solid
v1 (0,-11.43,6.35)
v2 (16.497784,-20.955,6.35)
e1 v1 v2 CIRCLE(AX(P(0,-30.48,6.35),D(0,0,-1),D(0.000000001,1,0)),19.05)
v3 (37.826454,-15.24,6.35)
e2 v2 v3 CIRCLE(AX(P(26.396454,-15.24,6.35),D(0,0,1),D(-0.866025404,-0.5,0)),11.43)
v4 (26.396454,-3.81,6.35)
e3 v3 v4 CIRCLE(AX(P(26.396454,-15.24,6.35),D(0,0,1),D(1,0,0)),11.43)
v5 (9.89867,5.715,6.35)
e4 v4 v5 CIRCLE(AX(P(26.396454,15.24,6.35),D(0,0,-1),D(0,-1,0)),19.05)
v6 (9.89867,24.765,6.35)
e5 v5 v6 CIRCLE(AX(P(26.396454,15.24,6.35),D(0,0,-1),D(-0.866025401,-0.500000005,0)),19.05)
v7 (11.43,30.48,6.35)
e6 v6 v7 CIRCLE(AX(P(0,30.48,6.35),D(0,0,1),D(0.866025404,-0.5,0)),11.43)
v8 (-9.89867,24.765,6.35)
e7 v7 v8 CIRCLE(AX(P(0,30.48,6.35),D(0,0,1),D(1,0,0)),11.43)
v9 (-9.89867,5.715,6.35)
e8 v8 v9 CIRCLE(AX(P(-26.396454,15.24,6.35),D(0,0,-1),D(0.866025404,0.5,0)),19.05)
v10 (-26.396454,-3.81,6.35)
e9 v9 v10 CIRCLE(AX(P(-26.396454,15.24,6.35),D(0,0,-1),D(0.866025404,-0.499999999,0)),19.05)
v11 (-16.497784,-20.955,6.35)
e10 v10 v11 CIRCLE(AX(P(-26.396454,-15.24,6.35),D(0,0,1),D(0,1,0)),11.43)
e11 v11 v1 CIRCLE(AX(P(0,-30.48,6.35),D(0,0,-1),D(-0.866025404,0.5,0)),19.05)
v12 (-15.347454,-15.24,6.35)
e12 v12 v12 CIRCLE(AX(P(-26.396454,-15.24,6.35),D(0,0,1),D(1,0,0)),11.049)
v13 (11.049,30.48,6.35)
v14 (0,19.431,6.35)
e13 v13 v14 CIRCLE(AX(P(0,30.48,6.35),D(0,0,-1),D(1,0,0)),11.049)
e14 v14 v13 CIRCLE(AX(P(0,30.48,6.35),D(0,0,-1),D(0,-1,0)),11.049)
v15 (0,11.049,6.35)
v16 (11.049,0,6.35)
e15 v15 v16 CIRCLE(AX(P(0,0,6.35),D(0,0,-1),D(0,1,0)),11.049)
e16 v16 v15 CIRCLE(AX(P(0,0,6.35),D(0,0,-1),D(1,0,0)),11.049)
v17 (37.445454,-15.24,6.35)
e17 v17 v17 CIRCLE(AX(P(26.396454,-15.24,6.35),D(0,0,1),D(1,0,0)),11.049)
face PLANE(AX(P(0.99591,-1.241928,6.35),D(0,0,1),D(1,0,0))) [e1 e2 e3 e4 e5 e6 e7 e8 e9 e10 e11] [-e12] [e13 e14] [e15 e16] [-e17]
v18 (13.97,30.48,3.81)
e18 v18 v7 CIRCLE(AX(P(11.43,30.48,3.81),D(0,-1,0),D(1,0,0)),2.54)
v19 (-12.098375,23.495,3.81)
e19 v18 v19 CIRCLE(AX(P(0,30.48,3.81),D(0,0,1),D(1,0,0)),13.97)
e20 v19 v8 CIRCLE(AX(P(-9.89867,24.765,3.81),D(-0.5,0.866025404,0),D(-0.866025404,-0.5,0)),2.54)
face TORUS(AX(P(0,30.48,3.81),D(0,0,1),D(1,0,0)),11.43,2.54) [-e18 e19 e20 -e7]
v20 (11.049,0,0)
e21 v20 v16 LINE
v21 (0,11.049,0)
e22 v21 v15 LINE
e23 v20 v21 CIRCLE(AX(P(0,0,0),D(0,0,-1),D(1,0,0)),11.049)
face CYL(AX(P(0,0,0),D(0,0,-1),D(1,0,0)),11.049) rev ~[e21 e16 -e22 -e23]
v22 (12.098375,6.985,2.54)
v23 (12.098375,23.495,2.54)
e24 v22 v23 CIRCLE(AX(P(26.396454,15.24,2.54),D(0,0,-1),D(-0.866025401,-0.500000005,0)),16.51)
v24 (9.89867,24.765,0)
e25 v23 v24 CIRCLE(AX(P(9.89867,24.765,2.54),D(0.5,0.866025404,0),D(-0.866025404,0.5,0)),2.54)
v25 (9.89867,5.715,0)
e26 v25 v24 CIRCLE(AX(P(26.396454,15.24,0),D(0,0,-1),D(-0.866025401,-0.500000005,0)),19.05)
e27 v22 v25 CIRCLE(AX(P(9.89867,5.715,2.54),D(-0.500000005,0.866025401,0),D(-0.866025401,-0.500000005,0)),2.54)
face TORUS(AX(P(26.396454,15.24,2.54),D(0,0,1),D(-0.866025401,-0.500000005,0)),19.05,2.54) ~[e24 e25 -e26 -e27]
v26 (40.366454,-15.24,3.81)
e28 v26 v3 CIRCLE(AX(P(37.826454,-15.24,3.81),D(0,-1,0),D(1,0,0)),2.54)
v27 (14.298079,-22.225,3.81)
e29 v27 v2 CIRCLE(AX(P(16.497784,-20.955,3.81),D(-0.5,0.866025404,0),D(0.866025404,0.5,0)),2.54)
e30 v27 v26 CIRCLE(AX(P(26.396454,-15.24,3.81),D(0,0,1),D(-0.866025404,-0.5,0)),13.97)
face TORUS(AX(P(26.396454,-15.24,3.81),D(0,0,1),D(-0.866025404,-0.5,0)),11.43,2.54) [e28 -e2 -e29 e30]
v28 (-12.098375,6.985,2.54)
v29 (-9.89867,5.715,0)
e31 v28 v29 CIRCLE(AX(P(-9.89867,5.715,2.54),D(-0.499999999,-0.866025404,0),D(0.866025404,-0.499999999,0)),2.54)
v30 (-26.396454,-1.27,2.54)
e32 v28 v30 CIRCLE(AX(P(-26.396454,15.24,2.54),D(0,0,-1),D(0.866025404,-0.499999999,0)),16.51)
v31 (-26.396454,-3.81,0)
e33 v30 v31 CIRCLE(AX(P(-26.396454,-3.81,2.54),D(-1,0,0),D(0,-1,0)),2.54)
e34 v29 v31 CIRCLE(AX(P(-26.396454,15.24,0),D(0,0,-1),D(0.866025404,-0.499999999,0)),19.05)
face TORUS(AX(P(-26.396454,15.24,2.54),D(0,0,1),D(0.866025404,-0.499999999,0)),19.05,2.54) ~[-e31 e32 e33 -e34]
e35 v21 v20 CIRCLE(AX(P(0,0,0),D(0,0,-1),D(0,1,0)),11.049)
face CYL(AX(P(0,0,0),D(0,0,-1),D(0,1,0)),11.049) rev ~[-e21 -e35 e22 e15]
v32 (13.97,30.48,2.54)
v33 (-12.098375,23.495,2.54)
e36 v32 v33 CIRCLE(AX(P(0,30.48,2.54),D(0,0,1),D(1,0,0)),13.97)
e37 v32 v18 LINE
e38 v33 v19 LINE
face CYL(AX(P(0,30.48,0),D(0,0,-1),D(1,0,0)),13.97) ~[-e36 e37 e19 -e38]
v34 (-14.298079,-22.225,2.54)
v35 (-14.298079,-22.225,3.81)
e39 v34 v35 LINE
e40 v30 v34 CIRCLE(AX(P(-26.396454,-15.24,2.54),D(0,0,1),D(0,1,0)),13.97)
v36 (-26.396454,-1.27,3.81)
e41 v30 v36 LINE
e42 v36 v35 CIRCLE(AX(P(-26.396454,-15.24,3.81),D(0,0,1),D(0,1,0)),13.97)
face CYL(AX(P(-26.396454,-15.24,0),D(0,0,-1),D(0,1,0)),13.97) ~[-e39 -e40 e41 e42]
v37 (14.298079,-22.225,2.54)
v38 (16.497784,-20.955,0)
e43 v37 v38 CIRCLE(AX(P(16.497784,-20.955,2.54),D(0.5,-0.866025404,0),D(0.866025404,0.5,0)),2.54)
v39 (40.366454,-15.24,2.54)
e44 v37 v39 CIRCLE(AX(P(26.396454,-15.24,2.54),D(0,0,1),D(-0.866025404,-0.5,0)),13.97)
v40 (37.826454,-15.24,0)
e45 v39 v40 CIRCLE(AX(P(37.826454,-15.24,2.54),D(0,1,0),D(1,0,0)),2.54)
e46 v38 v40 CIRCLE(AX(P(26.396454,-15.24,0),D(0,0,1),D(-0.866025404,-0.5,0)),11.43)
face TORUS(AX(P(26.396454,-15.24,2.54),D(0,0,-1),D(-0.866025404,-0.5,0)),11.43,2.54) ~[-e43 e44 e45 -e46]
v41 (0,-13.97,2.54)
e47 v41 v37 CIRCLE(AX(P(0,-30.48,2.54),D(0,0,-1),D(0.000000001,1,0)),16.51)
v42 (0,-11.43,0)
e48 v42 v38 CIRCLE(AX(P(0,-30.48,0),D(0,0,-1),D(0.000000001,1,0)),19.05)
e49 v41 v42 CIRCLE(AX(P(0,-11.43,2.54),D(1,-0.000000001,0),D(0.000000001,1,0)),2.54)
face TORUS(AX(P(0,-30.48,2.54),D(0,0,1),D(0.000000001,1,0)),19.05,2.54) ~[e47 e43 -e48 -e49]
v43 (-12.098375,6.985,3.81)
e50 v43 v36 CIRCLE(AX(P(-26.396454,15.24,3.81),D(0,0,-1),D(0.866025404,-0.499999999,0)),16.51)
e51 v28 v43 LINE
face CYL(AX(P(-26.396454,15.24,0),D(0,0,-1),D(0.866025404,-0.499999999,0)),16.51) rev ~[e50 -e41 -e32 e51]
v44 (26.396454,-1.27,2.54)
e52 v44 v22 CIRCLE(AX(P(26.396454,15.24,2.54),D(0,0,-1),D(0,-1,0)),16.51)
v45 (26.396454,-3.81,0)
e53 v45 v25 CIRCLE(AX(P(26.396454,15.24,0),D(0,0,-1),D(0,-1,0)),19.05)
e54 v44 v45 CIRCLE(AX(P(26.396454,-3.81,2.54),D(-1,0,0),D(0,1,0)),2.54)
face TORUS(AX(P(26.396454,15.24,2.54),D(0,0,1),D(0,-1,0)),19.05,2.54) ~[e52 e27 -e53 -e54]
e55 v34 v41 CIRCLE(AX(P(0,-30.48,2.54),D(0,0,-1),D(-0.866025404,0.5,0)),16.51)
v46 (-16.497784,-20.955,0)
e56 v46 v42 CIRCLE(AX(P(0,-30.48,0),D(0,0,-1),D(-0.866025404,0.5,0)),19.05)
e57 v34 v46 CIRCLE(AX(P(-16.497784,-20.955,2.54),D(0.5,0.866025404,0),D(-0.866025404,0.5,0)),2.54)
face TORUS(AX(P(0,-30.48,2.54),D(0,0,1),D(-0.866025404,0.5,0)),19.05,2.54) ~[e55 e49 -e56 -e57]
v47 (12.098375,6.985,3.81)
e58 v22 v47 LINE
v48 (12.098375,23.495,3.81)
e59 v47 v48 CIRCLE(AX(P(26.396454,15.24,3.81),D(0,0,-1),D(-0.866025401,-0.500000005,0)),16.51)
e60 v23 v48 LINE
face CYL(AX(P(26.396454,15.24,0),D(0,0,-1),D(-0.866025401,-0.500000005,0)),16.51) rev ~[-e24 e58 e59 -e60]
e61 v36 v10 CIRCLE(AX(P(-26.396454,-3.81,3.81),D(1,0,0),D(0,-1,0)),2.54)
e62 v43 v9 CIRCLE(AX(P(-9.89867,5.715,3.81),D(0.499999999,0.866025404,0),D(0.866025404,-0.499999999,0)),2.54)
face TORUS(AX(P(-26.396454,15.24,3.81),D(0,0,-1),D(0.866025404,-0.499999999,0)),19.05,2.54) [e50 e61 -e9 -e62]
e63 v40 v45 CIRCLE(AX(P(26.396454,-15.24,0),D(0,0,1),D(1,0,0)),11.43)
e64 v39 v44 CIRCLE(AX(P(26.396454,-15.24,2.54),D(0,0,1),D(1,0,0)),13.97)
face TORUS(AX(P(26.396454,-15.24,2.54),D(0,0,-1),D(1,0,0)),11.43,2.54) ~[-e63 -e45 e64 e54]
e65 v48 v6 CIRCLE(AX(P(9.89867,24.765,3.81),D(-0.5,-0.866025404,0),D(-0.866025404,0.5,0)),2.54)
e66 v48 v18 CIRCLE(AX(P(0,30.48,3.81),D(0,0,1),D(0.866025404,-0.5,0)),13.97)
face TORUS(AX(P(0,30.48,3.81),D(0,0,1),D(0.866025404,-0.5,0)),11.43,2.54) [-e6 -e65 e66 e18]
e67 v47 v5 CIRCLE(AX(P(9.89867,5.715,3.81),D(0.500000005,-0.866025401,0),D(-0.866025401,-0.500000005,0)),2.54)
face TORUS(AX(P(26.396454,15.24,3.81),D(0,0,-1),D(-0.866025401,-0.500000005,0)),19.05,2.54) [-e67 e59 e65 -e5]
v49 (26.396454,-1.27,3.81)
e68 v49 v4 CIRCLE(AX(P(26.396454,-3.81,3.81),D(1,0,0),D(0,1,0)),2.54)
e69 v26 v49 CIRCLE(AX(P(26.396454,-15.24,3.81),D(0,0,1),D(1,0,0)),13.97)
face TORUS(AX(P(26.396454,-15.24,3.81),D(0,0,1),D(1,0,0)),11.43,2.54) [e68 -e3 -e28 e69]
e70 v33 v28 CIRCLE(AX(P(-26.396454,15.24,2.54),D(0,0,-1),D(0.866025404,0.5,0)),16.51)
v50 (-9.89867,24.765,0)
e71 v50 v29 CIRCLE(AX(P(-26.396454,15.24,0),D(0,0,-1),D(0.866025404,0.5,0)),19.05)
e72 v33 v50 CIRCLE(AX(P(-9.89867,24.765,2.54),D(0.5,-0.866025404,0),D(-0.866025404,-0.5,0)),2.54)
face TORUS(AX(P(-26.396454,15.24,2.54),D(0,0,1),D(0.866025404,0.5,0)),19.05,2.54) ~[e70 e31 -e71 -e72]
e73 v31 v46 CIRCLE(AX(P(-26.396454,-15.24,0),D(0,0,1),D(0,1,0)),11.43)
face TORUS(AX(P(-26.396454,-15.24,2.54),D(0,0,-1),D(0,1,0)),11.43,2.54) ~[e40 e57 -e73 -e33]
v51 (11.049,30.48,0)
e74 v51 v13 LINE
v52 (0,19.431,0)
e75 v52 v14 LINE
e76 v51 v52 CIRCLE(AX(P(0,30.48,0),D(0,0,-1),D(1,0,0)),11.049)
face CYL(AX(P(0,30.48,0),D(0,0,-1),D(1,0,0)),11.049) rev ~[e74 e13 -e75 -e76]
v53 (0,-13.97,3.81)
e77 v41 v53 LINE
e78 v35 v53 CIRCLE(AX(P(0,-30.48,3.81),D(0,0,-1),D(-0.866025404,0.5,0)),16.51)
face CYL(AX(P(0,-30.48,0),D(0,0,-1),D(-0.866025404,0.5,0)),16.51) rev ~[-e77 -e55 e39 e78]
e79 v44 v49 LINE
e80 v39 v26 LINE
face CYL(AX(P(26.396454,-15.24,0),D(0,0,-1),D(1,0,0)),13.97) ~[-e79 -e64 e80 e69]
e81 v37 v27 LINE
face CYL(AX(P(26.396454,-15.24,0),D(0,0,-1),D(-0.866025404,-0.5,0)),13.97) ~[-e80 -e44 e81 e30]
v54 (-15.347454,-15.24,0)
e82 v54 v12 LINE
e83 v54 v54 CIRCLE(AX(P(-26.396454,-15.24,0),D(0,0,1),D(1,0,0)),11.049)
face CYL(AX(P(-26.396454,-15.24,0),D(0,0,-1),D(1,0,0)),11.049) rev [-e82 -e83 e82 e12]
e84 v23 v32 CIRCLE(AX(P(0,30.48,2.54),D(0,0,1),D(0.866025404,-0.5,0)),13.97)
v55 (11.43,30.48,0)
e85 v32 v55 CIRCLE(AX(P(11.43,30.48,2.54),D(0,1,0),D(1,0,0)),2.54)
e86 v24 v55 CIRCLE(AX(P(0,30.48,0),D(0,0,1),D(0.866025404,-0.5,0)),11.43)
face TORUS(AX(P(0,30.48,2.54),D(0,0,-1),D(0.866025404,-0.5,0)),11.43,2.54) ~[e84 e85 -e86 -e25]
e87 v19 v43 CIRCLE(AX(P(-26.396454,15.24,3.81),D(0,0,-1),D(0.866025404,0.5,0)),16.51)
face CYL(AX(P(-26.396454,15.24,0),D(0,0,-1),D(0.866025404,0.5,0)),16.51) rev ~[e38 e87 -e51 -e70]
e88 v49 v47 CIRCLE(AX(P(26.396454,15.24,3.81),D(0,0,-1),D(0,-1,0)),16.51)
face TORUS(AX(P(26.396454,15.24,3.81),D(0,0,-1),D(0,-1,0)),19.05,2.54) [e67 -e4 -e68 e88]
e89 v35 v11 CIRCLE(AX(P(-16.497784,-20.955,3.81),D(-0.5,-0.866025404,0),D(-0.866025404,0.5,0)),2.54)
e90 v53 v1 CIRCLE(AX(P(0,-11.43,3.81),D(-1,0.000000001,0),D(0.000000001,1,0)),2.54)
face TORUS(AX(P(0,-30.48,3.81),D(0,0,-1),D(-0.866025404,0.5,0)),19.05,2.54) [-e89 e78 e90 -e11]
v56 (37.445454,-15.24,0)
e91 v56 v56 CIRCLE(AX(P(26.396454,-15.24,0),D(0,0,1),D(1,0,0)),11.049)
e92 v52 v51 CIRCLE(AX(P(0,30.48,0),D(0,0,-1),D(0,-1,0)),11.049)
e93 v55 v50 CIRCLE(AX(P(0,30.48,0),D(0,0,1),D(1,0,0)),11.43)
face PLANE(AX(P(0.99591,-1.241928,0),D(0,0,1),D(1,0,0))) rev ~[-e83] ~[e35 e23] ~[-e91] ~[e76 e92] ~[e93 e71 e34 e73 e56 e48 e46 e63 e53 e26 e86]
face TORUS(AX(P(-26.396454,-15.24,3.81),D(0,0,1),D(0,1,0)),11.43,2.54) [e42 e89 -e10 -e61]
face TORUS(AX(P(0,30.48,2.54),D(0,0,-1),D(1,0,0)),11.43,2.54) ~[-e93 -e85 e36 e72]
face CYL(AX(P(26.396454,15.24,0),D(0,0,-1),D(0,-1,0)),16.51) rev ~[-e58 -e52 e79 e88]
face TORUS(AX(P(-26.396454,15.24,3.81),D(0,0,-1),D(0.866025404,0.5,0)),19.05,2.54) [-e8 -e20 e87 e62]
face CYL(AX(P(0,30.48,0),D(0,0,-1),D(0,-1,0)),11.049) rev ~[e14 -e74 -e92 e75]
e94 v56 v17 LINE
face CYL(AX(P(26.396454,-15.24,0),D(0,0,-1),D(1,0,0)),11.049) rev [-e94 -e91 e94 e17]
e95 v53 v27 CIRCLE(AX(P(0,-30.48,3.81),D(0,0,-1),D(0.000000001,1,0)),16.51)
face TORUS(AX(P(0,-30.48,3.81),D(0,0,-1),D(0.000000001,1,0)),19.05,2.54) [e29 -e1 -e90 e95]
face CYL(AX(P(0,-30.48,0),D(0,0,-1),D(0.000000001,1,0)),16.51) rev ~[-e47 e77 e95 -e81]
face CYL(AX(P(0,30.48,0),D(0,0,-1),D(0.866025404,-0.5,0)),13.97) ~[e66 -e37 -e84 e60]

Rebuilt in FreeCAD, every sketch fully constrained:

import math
import FreeCAD as App
import Part
import Sketcher
Q = App.Units.Quantity


def edges_at(feature, points):
    """Names of the edges that pass closest to the given points."""
    edges = feature.Shape.Edges
    near = lambda p: min(range(len(edges)), key=lambda i: edges[i].distToShape(Part.Vertex(*p))[0])
    return sorted({f"Edge{near(p) + 1}" for p in points})

doc = App.newDocument("Part")
body = doc.addObject("PartDesign::Body", "Body")

sketch1 = body.newObject("Sketcher::SketchObject", "Sketch")
sketch1.AttachmentSupport = (doc.getObject("XY_Plane"), [""])
sketch1.MapMode = "FlatFace"
sketch1.addGeometry(Part.ArcOfCircle(Part.Circle(App.Vector(26.396454, 15.24, 0), App.Vector(0, 0, 1), 16.51), math.radians(150), math.radians(210)), False)
sketch1.addGeometry(Part.ArcOfCircle(Part.Circle(App.Vector(0, 30.48, 0), App.Vector(0, 0, 1), 13.97), math.radians(-30), math.radians(0)), False)
sketch1.addGeometry(Part.ArcOfCircle(Part.Circle(App.Vector(0, 30.48, 0), App.Vector(0, 0, 1), 13.97), math.radians(0), math.radians(210)), False)
sketch1.addGeometry(Part.ArcOfCircle(Part.Circle(App.Vector(-26.396454, 15.24, 0), App.Vector(0, 0, 1), 16.51), math.radians(-30), math.radians(30)), False)
sketch1.addGeometry(Part.ArcOfCircle(Part.Circle(App.Vector(-26.396454, 15.24, 0), App.Vector(0, 0, 1), 16.51), math.radians(-90), math.radians(-30)), False)
sketch1.addGeometry(Part.ArcOfCircle(Part.Circle(App.Vector(-26.396454, -15.24, 0), App.Vector(0, 0, 1), 13.97), math.radians(90), math.radians(330)), False)
sketch1.addGeometry(Part.ArcOfCircle(Part.Circle(App.Vector(0, -30.48, 0), App.Vector(0, 0, 1), 16.51), math.radians(90), math.radians(150)), False)
sketch1.addGeometry(Part.ArcOfCircle(Part.Circle(App.Vector(0, -30.48, 0), App.Vector(0, 0, 1), 16.51), math.radians(30), math.radians(90)), False)
sketch1.addGeometry(Part.ArcOfCircle(Part.Circle(App.Vector(26.396454, -15.24, 0), App.Vector(0, 0, 1), 13.97), math.radians(-150), math.radians(0)), False)
sketch1.addGeometry(Part.ArcOfCircle(Part.Circle(App.Vector(26.396454, -15.24, 0), App.Vector(0, 0, 1), 13.97), math.radians(0), math.radians(90)), False)
sketch1.addGeometry(Part.ArcOfCircle(Part.Circle(App.Vector(26.396454, 15.24, 0), App.Vector(0, 0, 1), 16.51), math.radians(-150), math.radians(-90)), False)
sketch1.addGeometry(Part.Circle(App.Vector(-26.396454, -15.24, 0), App.Vector(0, 0, 1), 11.049), False)
sketch1.addGeometry(Part.Circle(App.Vector(26.396454, -15.24, 0), App.Vector(0, 0, 1), 11.049), False)
sketch1.addGeometry(Part.ArcOfCircle(Part.Circle(App.Vector(0, 0, 0), App.Vector(0, 0, 1), 11.049), math.radians(0), math.radians(90)), False)
sketch1.addGeometry(Part.ArcOfCircle(Part.Circle(App.Vector(0, 0, 0), App.Vector(0, 0, 1), 11.049), math.radians(90), math.radians(360)), False)
sketch1.addGeometry(Part.ArcOfCircle(Part.Circle(App.Vector(0, 30.48, 0), App.Vector(0, 0, 1), 11.049), math.radians(0), math.radians(270)), False)
sketch1.addGeometry(Part.ArcOfCircle(Part.Circle(App.Vector(0, 30.48, 0), App.Vector(0, 0, 1), 11.049), math.radians(-90), math.radians(0)), False)
sketch1.addConstraint(Sketcher.Constraint("Tangent", 0, 1, 1, 1))
sketch1.addConstraint(Sketcher.Constraint("Tangent", 1, 2, 2, 1))
sketch1.addConstraint(Sketcher.Constraint("Tangent", 2, 2, 3, 2))
sketch1.addConstraint(Sketcher.Constraint("Tangent", 3, 1, 4, 2))
sketch1.addConstraint(Sketcher.Constraint("Tangent", 4, 1, 5, 1))
sketch1.addConstraint(Sketcher.Constraint("Tangent", 5, 2, 6, 2))
sketch1.addConstraint(Sketcher.Constraint("Tangent", 6, 1, 7, 2))
sketch1.addConstraint(Sketcher.Constraint("Tangent", 7, 1, 8, 1))
sketch1.addConstraint(Sketcher.Constraint("Tangent", 8, 2, 9, 1))
sketch1.addConstraint(Sketcher.Constraint("Tangent", 9, 2, 10, 2))
sketch1.addConstraint(Sketcher.Constraint("Tangent", 10, 1, 0, 2))
sketch1.addConstraint(Sketcher.Constraint("Tangent", 13, 1, 14, 2))
sketch1.addConstraint(Sketcher.Constraint("Coincident", 14, 1, 13, 2))
sketch1.addConstraint(Sketcher.Constraint("Tangent", 15, 1, 16, 2))
sketch1.addConstraint(Sketcher.Constraint("Coincident", 16, 1, 15, 2))
sketch1.addConstraint(Sketcher.Constraint("Coincident", 13, 3, -1, 1))
sketch1.addConstraint(Sketcher.Constraint("Coincident", 11, 3, 5, 3))
sketch1.addConstraint(Sketcher.Constraint("Coincident", 12, 3, 8, 3))
sketch1.addConstraint(Sketcher.Constraint("Coincident", 15, 3, 1, 3))
sketch1.addConstraint(Sketcher.Constraint("Equal", 1, 2))
sketch1.addConstraint(Sketcher.Constraint("Equal", 0, 3))
sketch1.addConstraint(Sketcher.Constraint("Equal", 3, 4))
sketch1.addConstraint(Sketcher.Constraint("Equal", 2, 5))
sketch1.addConstraint(Sketcher.Constraint("Equal", 4, 6))
sketch1.addConstraint(Sketcher.Constraint("Equal", 6, 7))
sketch1.addConstraint(Sketcher.Constraint("Equal", 5, 8))
sketch1.addConstraint(Sketcher.Constraint("Equal", 8, 9))
sketch1.addConstraint(Sketcher.Constraint("Equal", 7, 10))
sketch1.addConstraint(Sketcher.Constraint("Equal", 11, 12))
sketch1.addConstraint(Sketcher.Constraint("Equal", 12, 13))
sketch1.addConstraint(Sketcher.Constraint("Equal", 14, 15))
sketch1.addConstraint(Sketcher.Constraint("Symmetric", 0, 3, 5, 3, -1, 1))
sketch1.addConstraint(Sketcher.Constraint("Symmetric", 0, 3, 3, 3, -2))
sketch1.addConstraint(Sketcher.Constraint("PointOnObject", 6, 3, -2))
sketch1.addConstraint(Sketcher.Constraint("PointOnObject", 6, 1, -2))
sketch1.addConstraint(Sketcher.Constraint("PointOnObject", 13, 1, -1))
sketch1.addConstraint(Sketcher.Constraint("PointOnObject", 14, 1, -2))
sketch1.addConstraint(Sketcher.Constraint("PointOnObject", 16, 1, -2))
sketch1.addConstraint(Sketcher.Constraint("Horizontal", 16, 3, 1, 2))
sketch1.addConstraint(Sketcher.Constraint("Horizontal", 12, 3, 8, 2))
sketch1.addConstraint(Sketcher.Constraint("Horizontal", 3, 1, 10, 1))
sketch1.addConstraint(Sketcher.Constraint("Horizontal", 1, 2, 15, 1))
sketch1.addConstraint(Sketcher.Constraint("Vertical", 2, 2, 3, 1))
sketch1.addConstraint(Sketcher.Constraint("Diameter", 11, Q("0.87 in")))
sketch1.addConstraint(Sketcher.Constraint("Radius", 0, Q("0.65 in")))
sketch1.addConstraint(Sketcher.Constraint("Radius", 1, Q("0.55 in")))
sketch1.addConstraint(Sketcher.Constraint("DistanceY", -1, 1, 1, 3, Q("1.2 in")))
pad1 = body.newObject("PartDesign::Pad", "Pad")
pad1.Profile = sketch1
pad1.Length = Q("0.25 in")
doc.recompute()

fillet = body.newObject("PartDesign::Fillet", "Fillet")
fillet.Base = (pad1, edges_at(pad1, [(-8.255, -16.182, 6.35), (-8.255, -16.182, 0)]))
fillet.Radius = Q("0.1 in")

doc.recompute()
